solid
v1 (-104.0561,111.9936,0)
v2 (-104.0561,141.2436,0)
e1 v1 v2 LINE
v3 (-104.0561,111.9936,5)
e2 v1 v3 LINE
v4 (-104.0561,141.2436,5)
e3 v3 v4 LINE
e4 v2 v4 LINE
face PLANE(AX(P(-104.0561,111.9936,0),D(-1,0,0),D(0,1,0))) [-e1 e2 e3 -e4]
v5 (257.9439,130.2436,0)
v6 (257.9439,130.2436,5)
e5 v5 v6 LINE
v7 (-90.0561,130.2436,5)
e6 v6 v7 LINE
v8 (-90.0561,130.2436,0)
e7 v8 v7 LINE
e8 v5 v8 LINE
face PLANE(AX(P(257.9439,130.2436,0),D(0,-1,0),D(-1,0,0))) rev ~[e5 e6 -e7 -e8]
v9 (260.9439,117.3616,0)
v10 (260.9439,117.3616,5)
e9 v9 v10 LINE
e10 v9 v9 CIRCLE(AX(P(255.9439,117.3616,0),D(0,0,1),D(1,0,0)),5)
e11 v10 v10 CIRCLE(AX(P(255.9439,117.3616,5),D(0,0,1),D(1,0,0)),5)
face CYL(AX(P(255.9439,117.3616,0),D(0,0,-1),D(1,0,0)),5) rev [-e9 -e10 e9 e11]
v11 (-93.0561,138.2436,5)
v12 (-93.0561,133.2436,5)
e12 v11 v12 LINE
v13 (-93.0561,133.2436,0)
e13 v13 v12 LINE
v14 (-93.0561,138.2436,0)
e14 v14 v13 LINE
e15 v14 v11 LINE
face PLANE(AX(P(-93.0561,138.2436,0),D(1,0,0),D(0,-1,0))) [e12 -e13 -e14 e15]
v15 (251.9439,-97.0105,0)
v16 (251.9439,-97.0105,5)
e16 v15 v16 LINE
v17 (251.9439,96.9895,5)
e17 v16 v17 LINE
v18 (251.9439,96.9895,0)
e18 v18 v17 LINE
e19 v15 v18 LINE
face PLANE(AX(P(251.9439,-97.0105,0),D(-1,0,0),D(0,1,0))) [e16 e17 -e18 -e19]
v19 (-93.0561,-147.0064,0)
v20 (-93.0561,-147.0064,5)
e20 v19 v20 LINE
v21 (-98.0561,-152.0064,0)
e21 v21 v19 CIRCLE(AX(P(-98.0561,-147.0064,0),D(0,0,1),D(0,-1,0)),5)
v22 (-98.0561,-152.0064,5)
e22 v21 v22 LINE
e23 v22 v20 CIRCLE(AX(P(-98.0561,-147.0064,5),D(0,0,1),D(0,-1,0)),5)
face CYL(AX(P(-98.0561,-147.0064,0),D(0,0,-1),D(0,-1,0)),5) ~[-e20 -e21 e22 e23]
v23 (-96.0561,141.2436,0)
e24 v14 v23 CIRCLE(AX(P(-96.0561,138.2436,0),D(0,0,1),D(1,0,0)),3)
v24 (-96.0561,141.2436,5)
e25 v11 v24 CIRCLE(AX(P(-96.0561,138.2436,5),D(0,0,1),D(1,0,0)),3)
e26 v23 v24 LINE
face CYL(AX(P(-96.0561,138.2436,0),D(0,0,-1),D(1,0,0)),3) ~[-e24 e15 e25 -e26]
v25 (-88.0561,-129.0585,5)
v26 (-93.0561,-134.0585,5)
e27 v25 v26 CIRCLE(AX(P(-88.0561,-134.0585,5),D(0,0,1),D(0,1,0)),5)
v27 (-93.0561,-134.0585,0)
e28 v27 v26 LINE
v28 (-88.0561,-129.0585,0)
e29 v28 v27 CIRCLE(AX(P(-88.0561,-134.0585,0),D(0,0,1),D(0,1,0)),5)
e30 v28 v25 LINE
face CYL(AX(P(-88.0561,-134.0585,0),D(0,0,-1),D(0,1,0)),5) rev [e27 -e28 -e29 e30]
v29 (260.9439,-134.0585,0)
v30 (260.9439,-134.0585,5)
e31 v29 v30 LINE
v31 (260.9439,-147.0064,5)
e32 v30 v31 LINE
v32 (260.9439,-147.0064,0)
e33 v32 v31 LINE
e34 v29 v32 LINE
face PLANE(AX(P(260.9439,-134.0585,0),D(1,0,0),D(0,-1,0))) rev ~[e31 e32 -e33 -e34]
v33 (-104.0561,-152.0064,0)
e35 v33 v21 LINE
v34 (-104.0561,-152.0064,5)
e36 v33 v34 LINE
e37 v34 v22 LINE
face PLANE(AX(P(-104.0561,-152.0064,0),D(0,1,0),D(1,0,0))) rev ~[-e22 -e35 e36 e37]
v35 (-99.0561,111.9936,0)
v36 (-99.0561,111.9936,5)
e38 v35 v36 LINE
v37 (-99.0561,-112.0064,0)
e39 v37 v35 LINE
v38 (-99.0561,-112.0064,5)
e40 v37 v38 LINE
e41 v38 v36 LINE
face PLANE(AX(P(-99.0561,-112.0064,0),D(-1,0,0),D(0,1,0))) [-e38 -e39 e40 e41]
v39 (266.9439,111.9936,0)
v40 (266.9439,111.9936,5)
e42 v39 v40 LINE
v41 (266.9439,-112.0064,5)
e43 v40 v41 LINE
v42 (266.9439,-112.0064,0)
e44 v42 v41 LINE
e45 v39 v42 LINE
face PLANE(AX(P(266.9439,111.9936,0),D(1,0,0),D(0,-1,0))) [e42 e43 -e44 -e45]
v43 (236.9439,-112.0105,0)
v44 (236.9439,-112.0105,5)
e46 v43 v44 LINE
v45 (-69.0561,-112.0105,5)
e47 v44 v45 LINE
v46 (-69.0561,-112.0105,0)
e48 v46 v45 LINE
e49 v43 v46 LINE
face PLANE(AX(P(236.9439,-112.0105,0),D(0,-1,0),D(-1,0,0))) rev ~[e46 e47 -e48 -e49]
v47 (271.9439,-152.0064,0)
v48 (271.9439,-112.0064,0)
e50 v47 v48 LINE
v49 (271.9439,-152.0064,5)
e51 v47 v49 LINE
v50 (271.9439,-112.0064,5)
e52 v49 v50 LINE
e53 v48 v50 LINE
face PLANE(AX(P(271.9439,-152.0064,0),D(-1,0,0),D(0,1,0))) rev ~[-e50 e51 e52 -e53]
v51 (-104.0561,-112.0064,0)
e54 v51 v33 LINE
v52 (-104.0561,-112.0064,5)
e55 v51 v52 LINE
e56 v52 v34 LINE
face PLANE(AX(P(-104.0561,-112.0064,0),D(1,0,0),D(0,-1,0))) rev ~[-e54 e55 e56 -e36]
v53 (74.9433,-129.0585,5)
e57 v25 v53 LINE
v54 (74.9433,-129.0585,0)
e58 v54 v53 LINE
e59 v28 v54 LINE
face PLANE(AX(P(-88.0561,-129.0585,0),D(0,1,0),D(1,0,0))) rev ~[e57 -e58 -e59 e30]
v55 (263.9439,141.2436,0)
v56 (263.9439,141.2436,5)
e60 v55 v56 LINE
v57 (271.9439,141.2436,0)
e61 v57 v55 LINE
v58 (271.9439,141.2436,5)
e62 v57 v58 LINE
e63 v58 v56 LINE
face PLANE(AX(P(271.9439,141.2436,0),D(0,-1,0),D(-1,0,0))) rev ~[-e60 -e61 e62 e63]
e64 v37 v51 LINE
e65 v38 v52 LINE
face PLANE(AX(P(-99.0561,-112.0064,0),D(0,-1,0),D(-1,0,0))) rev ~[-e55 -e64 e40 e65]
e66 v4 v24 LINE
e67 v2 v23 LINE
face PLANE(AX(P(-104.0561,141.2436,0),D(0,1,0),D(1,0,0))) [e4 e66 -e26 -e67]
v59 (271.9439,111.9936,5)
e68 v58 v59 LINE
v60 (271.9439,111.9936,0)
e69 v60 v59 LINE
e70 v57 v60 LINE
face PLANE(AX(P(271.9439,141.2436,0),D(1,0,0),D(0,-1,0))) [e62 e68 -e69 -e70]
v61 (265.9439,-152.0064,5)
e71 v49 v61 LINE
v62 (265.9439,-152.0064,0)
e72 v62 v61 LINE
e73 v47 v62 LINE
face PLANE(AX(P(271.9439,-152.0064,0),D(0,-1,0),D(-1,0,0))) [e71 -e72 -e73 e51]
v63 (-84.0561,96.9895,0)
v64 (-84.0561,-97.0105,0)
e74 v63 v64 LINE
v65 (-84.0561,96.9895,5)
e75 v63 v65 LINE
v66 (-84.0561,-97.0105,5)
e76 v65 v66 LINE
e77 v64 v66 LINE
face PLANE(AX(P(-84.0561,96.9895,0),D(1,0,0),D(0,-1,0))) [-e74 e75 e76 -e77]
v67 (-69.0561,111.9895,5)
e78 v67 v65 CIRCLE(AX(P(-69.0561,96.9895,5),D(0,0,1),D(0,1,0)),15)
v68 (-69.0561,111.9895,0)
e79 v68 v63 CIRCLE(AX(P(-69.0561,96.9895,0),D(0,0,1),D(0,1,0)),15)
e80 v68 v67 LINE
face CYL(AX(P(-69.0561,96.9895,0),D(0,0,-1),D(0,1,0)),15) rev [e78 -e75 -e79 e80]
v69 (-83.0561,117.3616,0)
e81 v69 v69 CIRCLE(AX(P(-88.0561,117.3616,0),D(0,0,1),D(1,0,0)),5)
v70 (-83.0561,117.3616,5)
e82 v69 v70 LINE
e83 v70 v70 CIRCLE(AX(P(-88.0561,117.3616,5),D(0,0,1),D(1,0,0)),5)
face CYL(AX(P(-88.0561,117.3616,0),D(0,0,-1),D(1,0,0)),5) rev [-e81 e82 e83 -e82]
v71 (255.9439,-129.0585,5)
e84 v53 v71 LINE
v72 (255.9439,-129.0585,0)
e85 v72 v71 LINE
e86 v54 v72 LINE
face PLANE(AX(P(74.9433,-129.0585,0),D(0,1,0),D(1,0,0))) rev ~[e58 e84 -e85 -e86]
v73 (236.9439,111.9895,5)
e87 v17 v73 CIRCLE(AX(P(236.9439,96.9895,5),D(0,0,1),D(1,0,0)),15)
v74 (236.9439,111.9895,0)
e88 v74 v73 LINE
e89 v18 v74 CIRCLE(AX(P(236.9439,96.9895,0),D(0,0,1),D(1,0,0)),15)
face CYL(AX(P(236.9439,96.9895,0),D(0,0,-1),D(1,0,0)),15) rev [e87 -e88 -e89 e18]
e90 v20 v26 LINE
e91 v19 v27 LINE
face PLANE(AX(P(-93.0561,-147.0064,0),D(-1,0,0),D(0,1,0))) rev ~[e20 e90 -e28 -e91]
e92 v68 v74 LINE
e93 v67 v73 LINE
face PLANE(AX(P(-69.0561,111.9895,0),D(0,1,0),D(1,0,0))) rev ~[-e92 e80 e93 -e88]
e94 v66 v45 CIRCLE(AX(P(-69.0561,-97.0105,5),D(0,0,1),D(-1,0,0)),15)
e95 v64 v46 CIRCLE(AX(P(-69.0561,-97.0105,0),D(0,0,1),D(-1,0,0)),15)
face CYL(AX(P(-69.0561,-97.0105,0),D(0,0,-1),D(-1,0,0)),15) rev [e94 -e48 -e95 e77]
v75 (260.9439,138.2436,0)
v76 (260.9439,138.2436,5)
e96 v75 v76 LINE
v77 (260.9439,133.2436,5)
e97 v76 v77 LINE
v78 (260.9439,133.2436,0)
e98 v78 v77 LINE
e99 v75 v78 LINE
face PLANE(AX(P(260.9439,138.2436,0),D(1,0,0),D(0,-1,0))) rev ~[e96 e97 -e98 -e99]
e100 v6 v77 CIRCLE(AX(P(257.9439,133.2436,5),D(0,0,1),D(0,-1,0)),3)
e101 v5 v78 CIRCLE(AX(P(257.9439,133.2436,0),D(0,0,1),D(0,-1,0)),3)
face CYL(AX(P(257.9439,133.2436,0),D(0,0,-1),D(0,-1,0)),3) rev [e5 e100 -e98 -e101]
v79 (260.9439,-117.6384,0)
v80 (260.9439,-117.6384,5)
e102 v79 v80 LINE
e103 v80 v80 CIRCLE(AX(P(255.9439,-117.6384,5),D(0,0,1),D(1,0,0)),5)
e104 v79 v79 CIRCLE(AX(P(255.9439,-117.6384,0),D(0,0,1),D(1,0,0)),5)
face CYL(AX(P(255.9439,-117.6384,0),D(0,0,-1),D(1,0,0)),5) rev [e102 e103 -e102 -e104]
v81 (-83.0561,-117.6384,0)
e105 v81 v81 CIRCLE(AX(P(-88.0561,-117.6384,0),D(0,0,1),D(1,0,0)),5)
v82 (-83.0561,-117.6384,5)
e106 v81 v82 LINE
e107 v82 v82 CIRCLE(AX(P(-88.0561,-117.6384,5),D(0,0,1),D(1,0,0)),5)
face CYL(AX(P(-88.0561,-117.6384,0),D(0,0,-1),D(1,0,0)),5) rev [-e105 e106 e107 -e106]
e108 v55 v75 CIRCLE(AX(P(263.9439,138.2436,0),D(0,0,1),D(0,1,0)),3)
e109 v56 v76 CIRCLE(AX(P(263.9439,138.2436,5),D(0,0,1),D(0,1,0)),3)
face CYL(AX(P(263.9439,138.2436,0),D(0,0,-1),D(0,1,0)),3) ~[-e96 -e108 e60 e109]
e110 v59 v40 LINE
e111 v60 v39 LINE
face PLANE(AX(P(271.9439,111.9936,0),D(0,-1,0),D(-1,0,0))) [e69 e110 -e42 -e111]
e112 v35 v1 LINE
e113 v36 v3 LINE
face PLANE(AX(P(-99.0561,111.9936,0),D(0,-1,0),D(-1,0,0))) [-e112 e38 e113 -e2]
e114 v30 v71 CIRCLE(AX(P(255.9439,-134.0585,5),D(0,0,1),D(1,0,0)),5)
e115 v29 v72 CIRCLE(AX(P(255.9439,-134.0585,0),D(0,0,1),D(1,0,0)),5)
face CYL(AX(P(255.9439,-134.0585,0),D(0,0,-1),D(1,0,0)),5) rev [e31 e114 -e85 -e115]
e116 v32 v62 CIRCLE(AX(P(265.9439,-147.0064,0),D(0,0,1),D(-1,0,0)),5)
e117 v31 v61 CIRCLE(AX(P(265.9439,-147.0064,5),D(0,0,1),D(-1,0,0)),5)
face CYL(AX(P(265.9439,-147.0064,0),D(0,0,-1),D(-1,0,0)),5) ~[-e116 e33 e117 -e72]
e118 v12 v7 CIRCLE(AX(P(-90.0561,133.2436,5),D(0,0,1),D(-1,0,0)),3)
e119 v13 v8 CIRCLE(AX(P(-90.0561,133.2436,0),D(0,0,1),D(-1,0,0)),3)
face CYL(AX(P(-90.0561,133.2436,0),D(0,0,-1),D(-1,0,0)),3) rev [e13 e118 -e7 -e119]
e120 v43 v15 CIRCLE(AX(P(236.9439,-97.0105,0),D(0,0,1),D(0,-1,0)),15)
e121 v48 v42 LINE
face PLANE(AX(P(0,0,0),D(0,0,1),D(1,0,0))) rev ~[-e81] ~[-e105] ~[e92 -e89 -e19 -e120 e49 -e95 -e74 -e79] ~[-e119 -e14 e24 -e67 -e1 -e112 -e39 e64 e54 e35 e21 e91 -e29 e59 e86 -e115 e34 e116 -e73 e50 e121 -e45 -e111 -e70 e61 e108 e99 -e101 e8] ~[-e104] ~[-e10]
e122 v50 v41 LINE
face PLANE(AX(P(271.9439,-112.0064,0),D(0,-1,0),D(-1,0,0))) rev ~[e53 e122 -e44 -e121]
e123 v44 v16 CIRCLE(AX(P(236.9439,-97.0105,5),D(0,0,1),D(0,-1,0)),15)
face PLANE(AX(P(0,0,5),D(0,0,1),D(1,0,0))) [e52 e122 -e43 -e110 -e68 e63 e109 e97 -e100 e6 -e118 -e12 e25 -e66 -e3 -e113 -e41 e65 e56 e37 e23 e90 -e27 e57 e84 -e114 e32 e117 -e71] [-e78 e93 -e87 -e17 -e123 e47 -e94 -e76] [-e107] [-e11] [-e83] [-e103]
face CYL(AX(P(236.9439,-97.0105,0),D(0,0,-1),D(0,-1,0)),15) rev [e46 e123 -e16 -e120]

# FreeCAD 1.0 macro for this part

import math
import FreeCAD as App
import Part
import Sketcher

V = App.Vector

doc = App.newDocument("Part")
params = doc.addObject("Spreadsheet::Sheet", "Params")
for row, (alias, value) in enumerate([
    ("sketch1_diameter", "10 mm"),
    ("sketch1_radius", "3 mm"),
    ("sketch1_radius2", "15 mm"),
    ("sketch1_width", "5 mm"),
    ("sketch1_width2", "8 mm"),
    ("pad1_length", "5 mm"),
], start=1):
    params.set(f"A{row}", alias)
    params.set(f"B{row}", "=" + value)
    params.setAlias(f"B{row}", alias)

body = doc.addObject("PartDesign::Body", "Body")

sketch1 = body.newObject("Sketcher::SketchObject", "Sketch")
sketch1.AttachmentSupport = (doc.getObject("XY_Plane"), [""])
sketch1.MapMode = "FlatFace"
sketch1.addGeometry(Part.LineSegment(V(266.9, -112, 0), V(266.9, 112, 0)), False)
sketch1.addGeometry(Part.LineSegment(V(266.9, 112, 0), V(271.9, 112, 0)), False)
sketch1.addGeometry(Part.LineSegment(V(271.9, 112, 0), V(271.9, 141.2, 0)), False)
sketch1.addGeometry(Part.LineSegment(V(271.9, 141.2, 0), V(263.9, 141.2, 0)), False)
sketch1.addGeometry(Part.ArcOfCircle(Part.Circle(V(263.9, 138.2, 0), V(0, 0, 1), 3), math.radians(90), math.radians(180)), False)
sketch1.addGeometry(Part.LineSegment(V(260.9, 138.2, 0), V(260.9, 133.2, 0)), False)
sketch1.addGeometry(Part.ArcOfCircle(Part.Circle(V(257.9, 133.2, 0), V(0, 0, 1), 3), math.radians(-90), math.radians(0)), False)
sketch1.addGeometry(Part.LineSegment(V(257.9, 130.2, 0), V(-90.1, 130.2, 0)), False)
sketch1.addGeometry(Part.ArcOfCircle(Part.Circle(V(-90.1, 133.2, 0), V(0, 0, 1), 3), math.radians(180), math.radians(270)), False)
sketch1.addGeometry(Part.LineSegment(V(-93.1, 133.2, 0), V(-93.1, 138.2, 0)), False)
sketch1.addGeometry(Part.ArcOfCircle(Part.Circle(V(-96.1, 138.2, 0), V(0, 0, 1), 3), math.radians(0), math.radians(90)), False)
sketch1.addGeometry(Part.LineSegment(V(-96.1, 141.2, 0), V(-104.1, 141.2, 0)), False)
sketch1.addGeometry(Part.LineSegment(V(-104.1, 141.2, 0), V(-104.1, 112, 0)), False)
sketch1.addGeometry(Part.LineSegment(V(-104.1, 112, 0), V(-99.1, 112, 0)), False)
sketch1.addGeometry(Part.LineSegment(V(-99.1, 112, 0), V(-99.1, -112, 0)), False)
sketch1.addGeometry(Part.LineSegment(V(-99.1, -112, 0), V(-104.1, -112, 0)), False)
sketch1.addGeometry(Part.LineSegment(V(-104.1, -112, 0), V(-104.1, -152, 0)), False)
sketch1.addGeometry(Part.LineSegment(V(-104.1, -152, 0), V(-98.1, -152, 0)), False)
sketch1.addGeometry(Part.ArcOfCircle(Part.Circle(V(-98.1, -147, 0), V(0, 0, 1), 5), math.radians(-90), math.radians(0)), False)
sketch1.addGeometry(Part.LineSegment(V(-93.1, -147, 0), V(-93.1, -134.1, 0)), False)
sketch1.addGeometry(Part.ArcOfCircle(Part.Circle(V(-88.1, -134.1, 0), V(0, 0, 1), 5), math.radians(90), math.radians(180)), False)
sketch1.addGeometry(Part.LineSegment(V(-88.1, -129.1, 0), V(255.9, -129.1, 0)), False)
sketch1.addGeometry(Part.ArcOfCircle(Part.Circle(V(255.9, -134.1, 0), V(0, 0, 1), 5), math.radians(0), math.radians(90)), False)
sketch1.addGeometry(Part.LineSegment(V(260.9, -134.1, 0), V(260.9, -147, 0)), False)
sketch1.addGeometry(Part.ArcOfCircle(Part.Circle(V(265.9, -147, 0), V(0, 0, 1), 5), math.radians(180), math.radians(270)), False)
sketch1.addGeometry(Part.LineSegment(V(265.9, -152, 0), V(271.9, -152, 0)), False)
sketch1.addGeometry(Part.LineSegment(V(271.9, -152, 0), V(271.9, -112, 0)), False)
sketch1.addGeometry(Part.LineSegment(V(271.9, -112, 0), V(266.9, -112, 0)), False)
sketch1.addGeometry(Part.Circle(V(-88.1, -117.6, 0), V(0, 0, 1), 5), False)
sketch1.addGeometry(Part.Circle(V(255.9, -117.6, 0), V(0, 0, 1), 5), False)
sketch1.addGeometry(Part.Circle(V(-88.1, 117.4, 0), V(0, 0, 1), 5), False)
sketch1.addGeometry(Part.LineSegment(V(251.9, 97, 0), V(251.9, -97, 0)), False)
sketch1.addGeometry(Part.ArcOfCircle(Part.Circle(V(236.9, -97, 0), V(0, 0, 1), 15), math.radians(-90), math.radians(0)), False)
sketch1.addGeometry(Part.LineSegment(V(236.9, -112, 0), V(-69.1, -112, 0)), False)
sketch1.addGeometry(Part.ArcOfCircle(Part.Circle(V(-69.1, -97, 0), V(0, 0, 1), 15), math.radians(180), math.radians(270)), False)
sketch1.addGeometry(Part.LineSegment(V(-84.1, -97, 0), V(-84.1, 97, 0)), False)
sketch1.addGeometry(Part.ArcOfCircle(Part.Circle(V(-69.1, 97, 0), V(0, 0, 1), 15), math.radians(90), math.radians(180)), False)
sketch1.addGeometry(Part.LineSegment(V(-69.1, 112, 0), V(236.9, 112, 0)), False)
sketch1.addGeometry(Part.ArcOfCircle(Part.Circle(V(236.9, 97, 0), V(0, 0, 1), 15), math.radians(0), math.radians(90)), False)
sketch1.addGeometry(Part.Circle(V(255.9, 117.4, 0), V(0, 0, 1), 5), False)
sketch1.addConstraint(Sketcher.Constraint("Coincident", 0, 2, 1, 1))
sketch1.addConstraint(Sketcher.Constraint("Coincident", 1, 2, 2, 1))
sketch1.addConstraint(Sketcher.Constraint("Coincident", 2, 2, 3, 1))
sketch1.addConstraint(Sketcher.Constraint("Tangent", 3, 2, 4, 1))
sketch1.addConstraint(Sketcher.Constraint("Tangent", 4, 2, 5, 1))
sketch1.addConstraint(Sketcher.Constraint("Tangent", 5, 2, 6, 2))
sketch1.addConstraint(Sketcher.Constraint("Tangent", 6, 1, 7, 1))
sketch1.addConstraint(Sketcher.Constraint("Tangent", 7, 2, 8, 2))
sketch1.addConstraint(Sketcher.Constraint("Tangent", 8, 1, 9, 1))
sketch1.addConstraint(Sketcher.Constraint("Tangent", 9, 2, 10, 1))
sketch1.addConstraint(Sketcher.Constraint("Tangent", 10, 2, 11, 1))
sketch1.addConstraint(Sketcher.Constraint("Coincident", 11, 2, 12, 1))
sketch1.addConstraint(Sketcher.Constraint("Coincident", 12, 2, 13, 1))
sketch1.addConstraint(Sketcher.Constraint("Coincident", 13, 2, 14, 1))
sketch1.addConstraint(Sketcher.Constraint("Coincident", 14, 2, 15, 1))
sketch1.addConstraint(Sketcher.Constraint("Coincident", 15, 2, 16, 1))
sketch1.addConstraint(Sketcher.Constraint("Coincident", 16, 2, 17, 1))
sketch1.addConstraint(Sketcher.Constraint("Tangent", 17, 2, 18, 1))
sketch1.addConstraint(Sketcher.Constraint("Tangent", 18, 2, 19, 1))
sketch1.addConstraint(Sketcher.Constraint("Tangent", 19, 2, 20, 2))
sketch1.addConstraint(Sketcher.Constraint("Tangent", 20, 1, 21, 1))
sketch1.addConstraint(Sketcher.Constraint("Tangent", 21, 2, 22, 2))
sketch1.addConstraint(Sketcher.Constraint("Tangent", 22, 1, 23, 1))
sketch1.addConstraint(Sketcher.Constraint("Tangent", 23, 2, 24, 1))
sketch1.addConstraint(Sketcher.Constraint("Tangent", 24, 2, 25, 1))
sketch1.addConstraint(Sketcher.Constraint("Coincident", 25, 2, 26, 1))
sketch1.addConstraint(Sketcher.Constraint("Coincident", 26, 2, 27, 1))
sketch1.addConstraint(Sketcher.Constraint("Coincident", 27, 2, 0, 1))
sketch1.addConstraint(Sketcher.Constraint("Tangent", 31, 2, 32, 2))
sketch1.addConstraint(Sketcher.Constraint("Tangent", 32, 1, 33, 1))
sketch1.addConstraint(Sketcher.Constraint("Tangent", 33, 2, 34, 2))
sketch1.addConstraint(Sketcher.Constraint("Tangent", 34, 1, 35, 1))
sketch1.addConstraint(Sketcher.Constraint("Tangent", 35, 2, 36, 2))
sketch1.addConstraint(Sketcher.Constraint("Tangent", 36, 1, 37, 1))
sketch1.addConstraint(Sketcher.Constraint("Tangent", 37, 2, 38, 2))
sketch1.addConstraint(Sketcher.Constraint("Tangent", 38, 1, 31, 1))
sketch1.addConstraint(Sketcher.Constraint("Vertical", 0))
sketch1.addConstraint(Sketcher.Constraint("Horizontal", 1))
sketch1.addConstraint(Sketcher.Constraint("Vertical", 2))
sketch1.addConstraint(Sketcher.Constraint("Horizontal", 3))
sketch1.addConstraint(Sketcher.Constraint("Vertical", 5))
sketch1.addConstraint(Sketcher.Constraint("Horizontal", 7))
sketch1.addConstraint(Sketcher.Constraint("Vertical", 9))
sketch1.addConstraint(Sketcher.Constraint("Horizontal", 11))
sketch1.addConstraint(Sketcher.Constraint("Vertical", 12))
sketch1.addConstraint(Sketcher.Constraint("Horizontal", 13))
sketch1.addConstraint(Sketcher.Constraint("Vertical", 14))
sketch1.addConstraint(Sketcher.Constraint("Horizontal", 15))
sketch1.addConstraint(Sketcher.Constraint("Vertical", 16))
sketch1.addConstraint(Sketcher.Constraint("Horizontal", 17))
sketch1.addConstraint(Sketcher.Constraint("Vertical", 19))
sketch1.addConstraint(Sketcher.Constraint("Horizontal", 21))
sketch1.addConstraint(Sketcher.Constraint("Vertical", 23))
sketch1.addConstraint(Sketcher.Constraint("Horizontal", 25))
sketch1.addConstraint(Sketcher.Constraint("Vertical", 26))
sketch1.addConstraint(Sketcher.Constraint("Horizontal", 27))
sketch1.addConstraint(Sketcher.Constraint("Vertical", 31))
sketch1.addConstraint(Sketcher.Constraint("Horizontal", 33))
sketch1.addConstraint(Sketcher.Constraint("Vertical", 35))
sketch1.addConstraint(Sketcher.Constraint("Horizontal", 37))
sketch1.addConstraint(Sketcher.Constraint("Equal", 4, 6))
sketch1.addConstraint(Sketcher.Constraint("Equal", 6, 8))
sketch1.addConstraint(Sketcher.Constraint("Equal", 8, 10))
sketch1.addConstraint(Sketcher.Constraint("Equal", 18, 20))
sketch1.addConstraint(Sketcher.Constraint("Equal", 20, 22))
sketch1.addConstraint(Sketcher.Constraint("Equal", 22, 24))
sketch1.addConstraint(Sketcher.Constraint("Equal", 24, 28))
sketch1.addConstraint(Sketcher.Constraint("Equal", 28, 29))
sketch1.addConstraint(Sketcher.Constraint("Equal", 29, 30))
sketch1.addConstraint(Sketcher.Constraint("Equal", 32, 34))
sketch1.addConstraint(Sketcher.Constraint("Equal", 34, 36))
sketch1.addConstraint(Sketcher.Constraint("Equal", 36, 38))
sketch1.addConstraint(Sketcher.Constraint("Equal", 30, 39))
sketch1.addConstraint(Sketcher.Constraint("Horizontal", 4, 3, 10, 3))
sketch1.addConstraint(Sketcher.Constraint("Horizontal", 18, 3, 24, 3))
sketch1.addConstraint(Sketcher.Constraint("Horizontal", 28, 3, 29, 3))
sketch1.addConstraint(Sketcher.Constraint("Horizontal", 30, 3, 39, 3))
sketch1.addConstraint(Sketcher.Constraint("Horizontal", 1, 2, 12, 2))
sketch1.addConstraint(Sketcher.Constraint("Horizontal", 15, 2, 26, 2))
sketch1.addConstraint(Sketcher.Constraint("Vertical", 20, 3, 28, 3))
sketch1.addConstraint(Sketcher.Constraint("Vertical", 22, 3, 29, 3))
sketch1.addConstraint(Sketcher.Constraint("Vertical", 28, 3, 30, 3))
sketch1.addConstraint(Sketcher.Constraint("Vertical", 29, 3, 39, 3))
sketch1.addConstraint(Sketcher.Constraint("Vertical", 12, 2, 15, 2))
sketch1.addConstraint(Sketcher.Constraint("Vertical", 9, 2, 18, 2))
sketch1.addConstraint(Sketcher.Constraint("Vertical", 5, 2, 22, 1))
sketch1.addConstraint(Sketcher.Constraint("Vertical", 2, 2, 25, 2))
sketch1.addConstraint(Sketcher.Constraint("Equal", 3, 11))
sketch1.addConstraint(Sketcher.Constraint("Equal", 1, 13))
sketch1.addConstraint(Sketcher.Constraint("Equal", 27, 5))
sketch1.addConstraint(Sketcher.Constraint("Diameter", 28, 10.0))
sketch1.addConstraint(Sketcher.Constraint("Radius", 4, 3.0))
sketch1.addConstraint(Sketcher.Constraint("Radius", 32, 15.0))
sketch1.addConstraint(Sketcher.Constraint("DistanceX", 1, 1, 1, 2, 5.0))
sketch1.addConstraint(Sketcher.Constraint("DistanceX", 3, 2, 3, 1, 8.0))
sketch1.addConstraint(Sketcher.Constraint("DistanceX", 21, 1, 21, 2, 344.0))
sketch1.addConstraint(Sketcher.Constraint("DistanceY", 16, 2, 16, 1, 40.0))
sketch1.addConstraint(Sketcher.Constraint("DistanceY", 28, 3, 30, 3, 235.0))
sketch1.addConstraint(Sketcher.Constraint("DistanceX", 31, 2, 29, 3, 4.0))
sketch1.addConstraint(Sketcher.Constraint("DistanceX", 28, 3, 34, 1, 4.0))
sketch1.addConstraint(Sketcher.Constraint("DistanceY", 0, 1, 0, 2, 224.0))
sketch1.addConstraint(Sketcher.Constraint("DistanceY", 31, 2, 31, 1, 194.0))
sketch1.addConstraint(Sketcher.Constraint("DistanceY", 2, 1, 2, 2, 29.25))
sketch1.addConstraint(Sketcher.Constraint("DistanceY", 19, 1, 19, 2, 12.948))
sketch1.addConstraint(Sketcher.Constraint("DistanceY", 20, 3, 28, 3, 16.42))
sketch1.addConstraint(Sketcher.Constraint("DistanceX", -1, 1, 4, 3, 263.944))
sketch1.addConstraint(Sketcher.Constraint("DistanceY", 29, 3, 32, 3, 20.628))
sketch1.addConstraint(Sketcher.Constraint("DistanceY", -1, 1, 4, 3, 138.2436))
sketch1.setExpression("Constraints[90]", "Params.sketch1_diameter")
sketch1.setExpression("Constraints[91]", "Params.sketch1_radius")
sketch1.setExpression("Constraints[92]", "Params.sketch1_radius2")
sketch1.setExpression("Constraints[93]", "Params.sketch1_width")
sketch1.setExpression("Constraints[94]", "Params.sketch1_width2")
pad1 = body.newObject("PartDesign::Pad", "Pad")
pad1.Profile = sketch1
pad1.setExpression("Length", "Params.pad1_length")

doc.recompute()
